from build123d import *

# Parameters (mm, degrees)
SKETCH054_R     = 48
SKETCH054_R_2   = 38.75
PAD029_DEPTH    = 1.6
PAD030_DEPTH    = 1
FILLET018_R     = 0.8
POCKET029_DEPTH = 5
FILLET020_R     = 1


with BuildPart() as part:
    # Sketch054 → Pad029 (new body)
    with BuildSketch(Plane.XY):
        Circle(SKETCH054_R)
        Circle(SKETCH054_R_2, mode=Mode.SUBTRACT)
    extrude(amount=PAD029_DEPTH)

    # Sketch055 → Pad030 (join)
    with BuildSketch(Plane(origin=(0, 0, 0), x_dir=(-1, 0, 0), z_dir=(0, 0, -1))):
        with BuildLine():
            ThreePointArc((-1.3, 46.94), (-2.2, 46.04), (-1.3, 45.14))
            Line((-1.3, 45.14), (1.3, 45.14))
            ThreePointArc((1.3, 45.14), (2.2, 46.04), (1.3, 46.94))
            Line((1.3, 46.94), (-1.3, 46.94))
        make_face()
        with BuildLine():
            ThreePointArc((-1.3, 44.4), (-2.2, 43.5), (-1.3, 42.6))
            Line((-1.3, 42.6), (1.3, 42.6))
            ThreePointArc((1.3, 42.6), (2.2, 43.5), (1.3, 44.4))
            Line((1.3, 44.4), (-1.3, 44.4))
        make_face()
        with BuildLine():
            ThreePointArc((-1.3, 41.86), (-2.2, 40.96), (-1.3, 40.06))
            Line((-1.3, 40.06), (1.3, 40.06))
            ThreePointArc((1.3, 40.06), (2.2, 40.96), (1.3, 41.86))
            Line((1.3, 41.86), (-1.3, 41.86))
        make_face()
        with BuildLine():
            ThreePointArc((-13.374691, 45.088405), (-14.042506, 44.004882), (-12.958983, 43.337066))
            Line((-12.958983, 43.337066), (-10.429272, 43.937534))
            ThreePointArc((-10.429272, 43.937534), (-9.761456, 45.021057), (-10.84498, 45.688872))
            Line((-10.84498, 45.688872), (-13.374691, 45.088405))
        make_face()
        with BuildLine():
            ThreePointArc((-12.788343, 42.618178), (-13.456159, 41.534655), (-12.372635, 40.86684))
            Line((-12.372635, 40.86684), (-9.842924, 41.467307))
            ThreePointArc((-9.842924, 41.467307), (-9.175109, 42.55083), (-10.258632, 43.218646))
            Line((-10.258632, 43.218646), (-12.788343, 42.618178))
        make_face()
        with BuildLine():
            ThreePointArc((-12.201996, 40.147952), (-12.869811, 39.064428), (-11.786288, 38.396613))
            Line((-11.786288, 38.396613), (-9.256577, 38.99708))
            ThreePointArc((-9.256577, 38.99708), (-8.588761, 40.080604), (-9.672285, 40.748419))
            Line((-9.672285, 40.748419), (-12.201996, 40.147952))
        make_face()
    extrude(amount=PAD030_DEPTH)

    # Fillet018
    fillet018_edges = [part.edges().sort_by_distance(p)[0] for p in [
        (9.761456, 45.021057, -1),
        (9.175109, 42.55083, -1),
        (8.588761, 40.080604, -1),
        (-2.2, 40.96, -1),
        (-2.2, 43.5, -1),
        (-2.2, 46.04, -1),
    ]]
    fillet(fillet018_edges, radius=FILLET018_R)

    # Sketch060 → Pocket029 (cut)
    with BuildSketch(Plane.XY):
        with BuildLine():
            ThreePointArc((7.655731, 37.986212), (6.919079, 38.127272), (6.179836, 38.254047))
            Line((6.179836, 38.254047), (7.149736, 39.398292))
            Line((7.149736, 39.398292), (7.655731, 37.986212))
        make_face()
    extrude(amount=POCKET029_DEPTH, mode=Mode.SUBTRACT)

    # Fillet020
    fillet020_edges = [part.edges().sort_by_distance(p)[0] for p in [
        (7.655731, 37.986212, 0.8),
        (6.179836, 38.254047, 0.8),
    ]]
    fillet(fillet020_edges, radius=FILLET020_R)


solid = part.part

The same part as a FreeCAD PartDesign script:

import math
import FreeCAD as App
import Part
import Sketcher
Q = App.Units.Quantity


def edges_at(feature, points):
    """Names of the edges that pass closest to the given points."""
    edges = feature.Shape.Edges
    near = lambda p: min(range(len(edges)), key=lambda i: edges[i].distToShape(Part.Vertex(*p))[0])
    return sorted({f"Edge{near(p) + 1}" for p in points})

doc = App.newDocument("Part")
body = doc.addObject("PartDesign::Body", "Body")

# Sketch on XY plane
sketch1 = body.newObject("Sketcher::SketchObject", "Sketch")
sketch1.AttachmentSupport = (doc.getObject("XY_Plane"), [""])
sketch1.MapMode = "FlatFace"
sketch1.addGeometry([
    Part.Circle(App.Vector(0, 0, 0), App.Vector(0, 0, 1), 48),
    Part.Circle(App.Vector(0, 0, 0), App.Vector(0, 0, 1), 39),
], False)
sketch1.addConstraint([
    Sketcher.Constraint("Coincident", 0, 3, -1, 1),
    Sketcher.Constraint("Coincident", 1, 3, -1, 1),
    Sketcher.Constraint("Diameter", 0, Q("96 mm")),
    Sketcher.Constraint("Diameter", 1, Q("77.5 mm")),
])
pad1 = body.newObject("PartDesign::Pad", "Pad")
pad1.Profile = sketch1
pad1.Length = 1.6

# Sketch on XY plane
sketch2 = body.newObject("Sketcher::SketchObject", "Sketch001")
sketch2.AttachmentSupport = (doc.getObject("XY_Plane"), [""])
sketch2.MapMode = "FlatFace"
sketch2.addGeometry([
    Part.ArcOfCircle(Part.Circle(App.Vector(1.3, 46, 0), App.Vector(0, 0, 1), 0.9), math.radians(-90), math.radians(90)),  # 0
    Part.LineSegment(App.Vector(1.3, 45.1, 0), App.Vector(-1.3, 45.1, 0)),  # 1
    Part.ArcOfCircle(Part.Circle(App.Vector(-1.3, 46, 0), App.Vector(0, 0, 1), 0.9), math.radians(90), math.radians(270)),  # 2
    Part.LineSegment(App.Vector(-1.3, 46.9, 0), App.Vector(1.3, 46.9, 0)),  # 3
    Part.ArcOfCircle(Part.Circle(App.Vector(1.3, 43.5, 0), App.Vector(0, 0, 1), 0.9), math.radians(-90), math.radians(90)),  # 4
    Part.LineSegment(App.Vector(1.3, 42.6, 0), App.Vector(-1.3, 42.6, 0)),  # 5
    Part.ArcOfCircle(Part.Circle(App.Vector(-1.3, 43.5, 0), App.Vector(0, 0, 1), 0.9), math.radians(90), math.radians(270)),  # 6
    Part.LineSegment(App.Vector(-1.3, 44.4, 0), App.Vector(1.3, 44.4, 0)),  # 7
    Part.ArcOfCircle(Part.Circle(App.Vector(1.3, 41, 0), App.Vector(0, 0, 1), 0.9), math.radians(-90), math.radians(90)),  # 8
    Part.LineSegment(App.Vector(1.3, 40.1, 0), App.Vector(-1.3, 40.1, 0)),  # 9
    Part.ArcOfCircle(Part.Circle(App.Vector(-1.3, 41, 0), App.Vector(0, 0, 1), 0.9), math.radians(90), math.radians(270)),  # 10
    Part.LineSegment(App.Vector(-1.3, 41.9, 0), App.Vector(1.3, 41.9, 0)),  # 11
    Part.ArcOfCircle(Part.Circle(App.Vector(13.2, 44.2, 0), App.Vector(0, 0, 1), 0.9), math.radians(-103), math.radians(77)),  # 12
    Part.LineSegment(App.Vector(13, 43.3, 0), App.Vector(10.4, 43.9, 0)),  # 13
    Part.ArcOfCircle(Part.Circle(App.Vector(10.6, 44.8, 0), App.Vector(0, 0, 1), 0.9), math.radians(77), math.radians(257)),  # 14
    Part.LineSegment(App.Vector(10.8, 45.7, 0), App.Vector(13.4, 45.1, 0)),  # 15
    Part.ArcOfCircle(Part.Circle(App.Vector(12.6, 41.7, 0), App.Vector(0, 0, 1), 0.9), math.radians(-103), math.radians(77)),  # 16
    Part.LineSegment(App.Vector(12.4, 40.9, 0), App.Vector(9.8, 41.5, 0)),  # 17
    Part.ArcOfCircle(Part.Circle(App.Vector(10.1, 42.3, 0), App.Vector(0, 0, 1), 0.9), math.radians(77), math.radians(257)),  # 18
    Part.LineSegment(App.Vector(10.3, 43.2, 0), App.Vector(12.8, 42.6, 0)),  # 19
    Part.ArcOfCircle(Part.Circle(App.Vector(12, 39.3, 0), App.Vector(0, 0, 1), 0.9), math.radians(-103), math.radians(77)),  # 20
    Part.LineSegment(App.Vector(11.8, 38.4, 0), App.Vector(9.3, 39, 0)),  # 21
    Part.ArcOfCircle(Part.Circle(App.Vector(9.5, 39.9, 0), App.Vector(0, 0, 1), 0.9), math.radians(77), math.radians(257)),  # 22
    Part.LineSegment(App.Vector(9.7, 40.7, 0), App.Vector(12.2, 40.1, 0)),  # 23
], False)
sketch2.addConstraint([
    Sketcher.Constraint("Tangent", 0, 1, 1, 1),
    Sketcher.Constraint("Tangent", 1, 2, 2, 2),
    Sketcher.Constraint("Tangent", 2, 1, 3, 1),
    Sketcher.Constraint("Tangent", 3, 2, 0, 2),
    Sketcher.Constraint("Tangent", 4, 1, 5, 1),
    Sketcher.Constraint("Tangent", 5, 2, 6, 2),
    Sketcher.Constraint("Tangent", 6, 1, 7, 1),
    Sketcher.Constraint("Tangent", 7, 2, 4, 2),
    Sketcher.Constraint("Tangent", 8, 1, 9, 1),
    Sketcher.Constraint("Tangent", 9, 2, 10, 2),
    Sketcher.Constraint("Tangent", 10, 1, 11, 1),
    Sketcher.Constraint("Tangent", 11, 2, 8, 2),
    Sketcher.Constraint("Tangent", 12, 1, 13, 1),
    Sketcher.Constraint("Tangent", 13, 2, 14, 2),
    Sketcher.Constraint("Tangent", 14, 1, 15, 1),
    Sketcher.Constraint("Tangent", 15, 2, 12, 2),
    Sketcher.Constraint("Tangent", 16, 1, 17, 1),
    Sketcher.Constraint("Tangent", 17, 2, 18, 2),
    Sketcher.Constraint("Tangent", 18, 1, 19, 1),
    Sketcher.Constraint("Tangent", 19, 2, 16, 2),
    Sketcher.Constraint("Tangent", 20, 1, 21, 1),
    Sketcher.Constraint("Tangent", 21, 2, 22, 2),
    Sketcher.Constraint("Tangent", 22, 1, 23, 1),
    Sketcher.Constraint("Tangent", 23, 2, 20, 2),
    Sketcher.Constraint("Horizontal", 1),
    Sketcher.Constraint("Horizontal", 3),
    Sketcher.Constraint("Horizontal", 5),
    Sketcher.Constraint("Horizontal", 7),
    Sketcher.Constraint("Horizontal", 9),
    Sketcher.Constraint("Horizontal", 11),
    Sketcher.Constraint("Equal", 2, 4),
    Sketcher.Constraint("Equal", 6, 8),
    Sketcher.Constraint("Equal", 10, 12),
    Sketcher.Constraint("Equal", 12, 14),
    Sketcher.Constraint("Equal", 14, 16),
    Sketcher.Constraint("Equal", 16, 18),
    Sketcher.Constraint("Equal", 18, 20),
    Sketcher.Constraint("Equal", 20, 22),
    Sketcher.Constraint("Parallel", 15, 17),
    Sketcher.Constraint("Parallel", 19, 21),
    Sketcher.Constraint("Vertical", 0, 3, 4, 3),
    Sketcher.Constraint("Vertical", 2, 3, 6, 3),
    Sketcher.Constraint("Vertical", 4, 3, 8, 3),
    Sketcher.Constraint("Vertical", 6, 3, 10, 3),
    Sketcher.Constraint("Equal", 15, 17),
    Sketcher.Constraint("Equal", 19, 21),
    Sketcher.Constraint("Radius", 0, Q("0.9 mm")),
    Sketcher.Constraint("DistanceX", 1, 2, 1, 1, Q("2.6 mm")),
    Sketcher.Constraint("Distance", 13, Q("2.6 mm")),
    Sketcher.Constraint("DistanceX", -1, 1, 0, 3, Q("1.3 mm")),
    Sketcher.Constraint("DistanceY", -1, 1, 4, 3, Q("43.5 mm")),
    Sketcher.Constraint("DistanceY", -1, 1, 0, 3, Q("46.04 mm")),
    Sketcher.Constraint("DistanceY", -1, 1, 8, 3, Q("40.96 mm")),
    Sketcher.Constraint("DistanceY", 13, 2, 12, 3, Q("0.275202 mm")),
    Sketcher.Constraint("DistanceX", 18, 3, 14, 1, Q("0.794201 mm")),
    Sketcher.Constraint("DistanceX", 20, 1, 16, 3, Q("0.794202 mm")),
    Sketcher.Constraint("DistanceX", -1, 1, 16, 3, Q("12.58049 mm")),
    Sketcher.Constraint("DistanceY", -1, 1, 16, 3, Q("41.742509 mm")),
    Sketcher.Constraint("DistanceY", -1, 1, 22, 3, Q("39.87275 mm")),
    Sketcher.Constraint("DistanceY", 18, 3, 12, 3, Q("1.869759 mm")),
])
pad2 = body.newObject("PartDesign::Pad", "Pad001")
pad2.Profile = sketch2
pad2.Length = 1
pad2.Reversed = True
doc.recompute()

fillet = body.newObject("PartDesign::Fillet", "Fillet")
fillet.Base = (pad2, edges_at(pad2, [
    (9.761, 45.021, -1),
    (9.175, 42.551, -1),
    (8.589, 40.081, -1),
    (-2.2, 40.96, -1),
    (-2.2, 43.5, -1),
    (-2.2, 46.04, -1),
]))
fillet.Radius = 0.8

# Sketch on XY plane
sketch3 = body.newObject("Sketcher::SketchObject", "Sketch002")
sketch3.AttachmentSupport = (doc.getObject("XY_Plane"), [""])
sketch3.MapMode = "FlatFace"
sketch3.addGeometry([
    Part.ArcOfCircle(Part.Circle(App.Vector(0, 0, 0), App.Vector(0, 0, 1), 38.7), math.radians(78.61), math.radians(80.82)),
    Part.LineSegment(App.Vector(7.7, 38, 0), App.Vector(7.1, 39.4, 0)),
    Part.LineSegment(App.Vector(7.1, 39.4, 0), App.Vector(6.2, 38.3, 0)),
], False)
sketch3.addConstraint([
    Sketcher.Constraint("Coincident", 0, 1, 1, 1),
    Sketcher.Constraint("Coincident", 1, 2, 2, 1),
    Sketcher.Constraint("Coincident", 2, 2, 0, 2),
    Sketcher.Constraint("Equal", 1, 2),
    Sketcher.Constraint("Distance", 1, Q("1.5 mm")),
    Sketcher.Constraint("Radius", 0, Q("38.748464 mm")),
    Sketcher.Constraint("DistanceY", 0, 3, 0, 1, Q("37.984702 mm")),
    Sketcher.Constraint("DistanceX", 2, 2, 1, 2, Q("0.9699 mm")),
    Sketcher.Constraint("DistanceY", -1, 1, 0, 3, Q("0.00151 mm")),
    Sketcher.Constraint("DistanceX", -1, 1, 0, 1, Q("7.655731 mm")),
])
pocket1 = body.newObject("PartDesign::Pocket", "Pocket")
pocket1.Profile = sketch3
pocket1.Length = 5
pocket1.Reversed = True
doc.recompute()

fillet2 = body.newObject("PartDesign::Fillet", "Fillet001")
fillet2.Base = (pocket1, edges_at(pocket1, [(7.656, 37.986, 0.8), (6.18, 38.254, 0.8)]))
fillet2.Radius = 1

doc.recompute()
